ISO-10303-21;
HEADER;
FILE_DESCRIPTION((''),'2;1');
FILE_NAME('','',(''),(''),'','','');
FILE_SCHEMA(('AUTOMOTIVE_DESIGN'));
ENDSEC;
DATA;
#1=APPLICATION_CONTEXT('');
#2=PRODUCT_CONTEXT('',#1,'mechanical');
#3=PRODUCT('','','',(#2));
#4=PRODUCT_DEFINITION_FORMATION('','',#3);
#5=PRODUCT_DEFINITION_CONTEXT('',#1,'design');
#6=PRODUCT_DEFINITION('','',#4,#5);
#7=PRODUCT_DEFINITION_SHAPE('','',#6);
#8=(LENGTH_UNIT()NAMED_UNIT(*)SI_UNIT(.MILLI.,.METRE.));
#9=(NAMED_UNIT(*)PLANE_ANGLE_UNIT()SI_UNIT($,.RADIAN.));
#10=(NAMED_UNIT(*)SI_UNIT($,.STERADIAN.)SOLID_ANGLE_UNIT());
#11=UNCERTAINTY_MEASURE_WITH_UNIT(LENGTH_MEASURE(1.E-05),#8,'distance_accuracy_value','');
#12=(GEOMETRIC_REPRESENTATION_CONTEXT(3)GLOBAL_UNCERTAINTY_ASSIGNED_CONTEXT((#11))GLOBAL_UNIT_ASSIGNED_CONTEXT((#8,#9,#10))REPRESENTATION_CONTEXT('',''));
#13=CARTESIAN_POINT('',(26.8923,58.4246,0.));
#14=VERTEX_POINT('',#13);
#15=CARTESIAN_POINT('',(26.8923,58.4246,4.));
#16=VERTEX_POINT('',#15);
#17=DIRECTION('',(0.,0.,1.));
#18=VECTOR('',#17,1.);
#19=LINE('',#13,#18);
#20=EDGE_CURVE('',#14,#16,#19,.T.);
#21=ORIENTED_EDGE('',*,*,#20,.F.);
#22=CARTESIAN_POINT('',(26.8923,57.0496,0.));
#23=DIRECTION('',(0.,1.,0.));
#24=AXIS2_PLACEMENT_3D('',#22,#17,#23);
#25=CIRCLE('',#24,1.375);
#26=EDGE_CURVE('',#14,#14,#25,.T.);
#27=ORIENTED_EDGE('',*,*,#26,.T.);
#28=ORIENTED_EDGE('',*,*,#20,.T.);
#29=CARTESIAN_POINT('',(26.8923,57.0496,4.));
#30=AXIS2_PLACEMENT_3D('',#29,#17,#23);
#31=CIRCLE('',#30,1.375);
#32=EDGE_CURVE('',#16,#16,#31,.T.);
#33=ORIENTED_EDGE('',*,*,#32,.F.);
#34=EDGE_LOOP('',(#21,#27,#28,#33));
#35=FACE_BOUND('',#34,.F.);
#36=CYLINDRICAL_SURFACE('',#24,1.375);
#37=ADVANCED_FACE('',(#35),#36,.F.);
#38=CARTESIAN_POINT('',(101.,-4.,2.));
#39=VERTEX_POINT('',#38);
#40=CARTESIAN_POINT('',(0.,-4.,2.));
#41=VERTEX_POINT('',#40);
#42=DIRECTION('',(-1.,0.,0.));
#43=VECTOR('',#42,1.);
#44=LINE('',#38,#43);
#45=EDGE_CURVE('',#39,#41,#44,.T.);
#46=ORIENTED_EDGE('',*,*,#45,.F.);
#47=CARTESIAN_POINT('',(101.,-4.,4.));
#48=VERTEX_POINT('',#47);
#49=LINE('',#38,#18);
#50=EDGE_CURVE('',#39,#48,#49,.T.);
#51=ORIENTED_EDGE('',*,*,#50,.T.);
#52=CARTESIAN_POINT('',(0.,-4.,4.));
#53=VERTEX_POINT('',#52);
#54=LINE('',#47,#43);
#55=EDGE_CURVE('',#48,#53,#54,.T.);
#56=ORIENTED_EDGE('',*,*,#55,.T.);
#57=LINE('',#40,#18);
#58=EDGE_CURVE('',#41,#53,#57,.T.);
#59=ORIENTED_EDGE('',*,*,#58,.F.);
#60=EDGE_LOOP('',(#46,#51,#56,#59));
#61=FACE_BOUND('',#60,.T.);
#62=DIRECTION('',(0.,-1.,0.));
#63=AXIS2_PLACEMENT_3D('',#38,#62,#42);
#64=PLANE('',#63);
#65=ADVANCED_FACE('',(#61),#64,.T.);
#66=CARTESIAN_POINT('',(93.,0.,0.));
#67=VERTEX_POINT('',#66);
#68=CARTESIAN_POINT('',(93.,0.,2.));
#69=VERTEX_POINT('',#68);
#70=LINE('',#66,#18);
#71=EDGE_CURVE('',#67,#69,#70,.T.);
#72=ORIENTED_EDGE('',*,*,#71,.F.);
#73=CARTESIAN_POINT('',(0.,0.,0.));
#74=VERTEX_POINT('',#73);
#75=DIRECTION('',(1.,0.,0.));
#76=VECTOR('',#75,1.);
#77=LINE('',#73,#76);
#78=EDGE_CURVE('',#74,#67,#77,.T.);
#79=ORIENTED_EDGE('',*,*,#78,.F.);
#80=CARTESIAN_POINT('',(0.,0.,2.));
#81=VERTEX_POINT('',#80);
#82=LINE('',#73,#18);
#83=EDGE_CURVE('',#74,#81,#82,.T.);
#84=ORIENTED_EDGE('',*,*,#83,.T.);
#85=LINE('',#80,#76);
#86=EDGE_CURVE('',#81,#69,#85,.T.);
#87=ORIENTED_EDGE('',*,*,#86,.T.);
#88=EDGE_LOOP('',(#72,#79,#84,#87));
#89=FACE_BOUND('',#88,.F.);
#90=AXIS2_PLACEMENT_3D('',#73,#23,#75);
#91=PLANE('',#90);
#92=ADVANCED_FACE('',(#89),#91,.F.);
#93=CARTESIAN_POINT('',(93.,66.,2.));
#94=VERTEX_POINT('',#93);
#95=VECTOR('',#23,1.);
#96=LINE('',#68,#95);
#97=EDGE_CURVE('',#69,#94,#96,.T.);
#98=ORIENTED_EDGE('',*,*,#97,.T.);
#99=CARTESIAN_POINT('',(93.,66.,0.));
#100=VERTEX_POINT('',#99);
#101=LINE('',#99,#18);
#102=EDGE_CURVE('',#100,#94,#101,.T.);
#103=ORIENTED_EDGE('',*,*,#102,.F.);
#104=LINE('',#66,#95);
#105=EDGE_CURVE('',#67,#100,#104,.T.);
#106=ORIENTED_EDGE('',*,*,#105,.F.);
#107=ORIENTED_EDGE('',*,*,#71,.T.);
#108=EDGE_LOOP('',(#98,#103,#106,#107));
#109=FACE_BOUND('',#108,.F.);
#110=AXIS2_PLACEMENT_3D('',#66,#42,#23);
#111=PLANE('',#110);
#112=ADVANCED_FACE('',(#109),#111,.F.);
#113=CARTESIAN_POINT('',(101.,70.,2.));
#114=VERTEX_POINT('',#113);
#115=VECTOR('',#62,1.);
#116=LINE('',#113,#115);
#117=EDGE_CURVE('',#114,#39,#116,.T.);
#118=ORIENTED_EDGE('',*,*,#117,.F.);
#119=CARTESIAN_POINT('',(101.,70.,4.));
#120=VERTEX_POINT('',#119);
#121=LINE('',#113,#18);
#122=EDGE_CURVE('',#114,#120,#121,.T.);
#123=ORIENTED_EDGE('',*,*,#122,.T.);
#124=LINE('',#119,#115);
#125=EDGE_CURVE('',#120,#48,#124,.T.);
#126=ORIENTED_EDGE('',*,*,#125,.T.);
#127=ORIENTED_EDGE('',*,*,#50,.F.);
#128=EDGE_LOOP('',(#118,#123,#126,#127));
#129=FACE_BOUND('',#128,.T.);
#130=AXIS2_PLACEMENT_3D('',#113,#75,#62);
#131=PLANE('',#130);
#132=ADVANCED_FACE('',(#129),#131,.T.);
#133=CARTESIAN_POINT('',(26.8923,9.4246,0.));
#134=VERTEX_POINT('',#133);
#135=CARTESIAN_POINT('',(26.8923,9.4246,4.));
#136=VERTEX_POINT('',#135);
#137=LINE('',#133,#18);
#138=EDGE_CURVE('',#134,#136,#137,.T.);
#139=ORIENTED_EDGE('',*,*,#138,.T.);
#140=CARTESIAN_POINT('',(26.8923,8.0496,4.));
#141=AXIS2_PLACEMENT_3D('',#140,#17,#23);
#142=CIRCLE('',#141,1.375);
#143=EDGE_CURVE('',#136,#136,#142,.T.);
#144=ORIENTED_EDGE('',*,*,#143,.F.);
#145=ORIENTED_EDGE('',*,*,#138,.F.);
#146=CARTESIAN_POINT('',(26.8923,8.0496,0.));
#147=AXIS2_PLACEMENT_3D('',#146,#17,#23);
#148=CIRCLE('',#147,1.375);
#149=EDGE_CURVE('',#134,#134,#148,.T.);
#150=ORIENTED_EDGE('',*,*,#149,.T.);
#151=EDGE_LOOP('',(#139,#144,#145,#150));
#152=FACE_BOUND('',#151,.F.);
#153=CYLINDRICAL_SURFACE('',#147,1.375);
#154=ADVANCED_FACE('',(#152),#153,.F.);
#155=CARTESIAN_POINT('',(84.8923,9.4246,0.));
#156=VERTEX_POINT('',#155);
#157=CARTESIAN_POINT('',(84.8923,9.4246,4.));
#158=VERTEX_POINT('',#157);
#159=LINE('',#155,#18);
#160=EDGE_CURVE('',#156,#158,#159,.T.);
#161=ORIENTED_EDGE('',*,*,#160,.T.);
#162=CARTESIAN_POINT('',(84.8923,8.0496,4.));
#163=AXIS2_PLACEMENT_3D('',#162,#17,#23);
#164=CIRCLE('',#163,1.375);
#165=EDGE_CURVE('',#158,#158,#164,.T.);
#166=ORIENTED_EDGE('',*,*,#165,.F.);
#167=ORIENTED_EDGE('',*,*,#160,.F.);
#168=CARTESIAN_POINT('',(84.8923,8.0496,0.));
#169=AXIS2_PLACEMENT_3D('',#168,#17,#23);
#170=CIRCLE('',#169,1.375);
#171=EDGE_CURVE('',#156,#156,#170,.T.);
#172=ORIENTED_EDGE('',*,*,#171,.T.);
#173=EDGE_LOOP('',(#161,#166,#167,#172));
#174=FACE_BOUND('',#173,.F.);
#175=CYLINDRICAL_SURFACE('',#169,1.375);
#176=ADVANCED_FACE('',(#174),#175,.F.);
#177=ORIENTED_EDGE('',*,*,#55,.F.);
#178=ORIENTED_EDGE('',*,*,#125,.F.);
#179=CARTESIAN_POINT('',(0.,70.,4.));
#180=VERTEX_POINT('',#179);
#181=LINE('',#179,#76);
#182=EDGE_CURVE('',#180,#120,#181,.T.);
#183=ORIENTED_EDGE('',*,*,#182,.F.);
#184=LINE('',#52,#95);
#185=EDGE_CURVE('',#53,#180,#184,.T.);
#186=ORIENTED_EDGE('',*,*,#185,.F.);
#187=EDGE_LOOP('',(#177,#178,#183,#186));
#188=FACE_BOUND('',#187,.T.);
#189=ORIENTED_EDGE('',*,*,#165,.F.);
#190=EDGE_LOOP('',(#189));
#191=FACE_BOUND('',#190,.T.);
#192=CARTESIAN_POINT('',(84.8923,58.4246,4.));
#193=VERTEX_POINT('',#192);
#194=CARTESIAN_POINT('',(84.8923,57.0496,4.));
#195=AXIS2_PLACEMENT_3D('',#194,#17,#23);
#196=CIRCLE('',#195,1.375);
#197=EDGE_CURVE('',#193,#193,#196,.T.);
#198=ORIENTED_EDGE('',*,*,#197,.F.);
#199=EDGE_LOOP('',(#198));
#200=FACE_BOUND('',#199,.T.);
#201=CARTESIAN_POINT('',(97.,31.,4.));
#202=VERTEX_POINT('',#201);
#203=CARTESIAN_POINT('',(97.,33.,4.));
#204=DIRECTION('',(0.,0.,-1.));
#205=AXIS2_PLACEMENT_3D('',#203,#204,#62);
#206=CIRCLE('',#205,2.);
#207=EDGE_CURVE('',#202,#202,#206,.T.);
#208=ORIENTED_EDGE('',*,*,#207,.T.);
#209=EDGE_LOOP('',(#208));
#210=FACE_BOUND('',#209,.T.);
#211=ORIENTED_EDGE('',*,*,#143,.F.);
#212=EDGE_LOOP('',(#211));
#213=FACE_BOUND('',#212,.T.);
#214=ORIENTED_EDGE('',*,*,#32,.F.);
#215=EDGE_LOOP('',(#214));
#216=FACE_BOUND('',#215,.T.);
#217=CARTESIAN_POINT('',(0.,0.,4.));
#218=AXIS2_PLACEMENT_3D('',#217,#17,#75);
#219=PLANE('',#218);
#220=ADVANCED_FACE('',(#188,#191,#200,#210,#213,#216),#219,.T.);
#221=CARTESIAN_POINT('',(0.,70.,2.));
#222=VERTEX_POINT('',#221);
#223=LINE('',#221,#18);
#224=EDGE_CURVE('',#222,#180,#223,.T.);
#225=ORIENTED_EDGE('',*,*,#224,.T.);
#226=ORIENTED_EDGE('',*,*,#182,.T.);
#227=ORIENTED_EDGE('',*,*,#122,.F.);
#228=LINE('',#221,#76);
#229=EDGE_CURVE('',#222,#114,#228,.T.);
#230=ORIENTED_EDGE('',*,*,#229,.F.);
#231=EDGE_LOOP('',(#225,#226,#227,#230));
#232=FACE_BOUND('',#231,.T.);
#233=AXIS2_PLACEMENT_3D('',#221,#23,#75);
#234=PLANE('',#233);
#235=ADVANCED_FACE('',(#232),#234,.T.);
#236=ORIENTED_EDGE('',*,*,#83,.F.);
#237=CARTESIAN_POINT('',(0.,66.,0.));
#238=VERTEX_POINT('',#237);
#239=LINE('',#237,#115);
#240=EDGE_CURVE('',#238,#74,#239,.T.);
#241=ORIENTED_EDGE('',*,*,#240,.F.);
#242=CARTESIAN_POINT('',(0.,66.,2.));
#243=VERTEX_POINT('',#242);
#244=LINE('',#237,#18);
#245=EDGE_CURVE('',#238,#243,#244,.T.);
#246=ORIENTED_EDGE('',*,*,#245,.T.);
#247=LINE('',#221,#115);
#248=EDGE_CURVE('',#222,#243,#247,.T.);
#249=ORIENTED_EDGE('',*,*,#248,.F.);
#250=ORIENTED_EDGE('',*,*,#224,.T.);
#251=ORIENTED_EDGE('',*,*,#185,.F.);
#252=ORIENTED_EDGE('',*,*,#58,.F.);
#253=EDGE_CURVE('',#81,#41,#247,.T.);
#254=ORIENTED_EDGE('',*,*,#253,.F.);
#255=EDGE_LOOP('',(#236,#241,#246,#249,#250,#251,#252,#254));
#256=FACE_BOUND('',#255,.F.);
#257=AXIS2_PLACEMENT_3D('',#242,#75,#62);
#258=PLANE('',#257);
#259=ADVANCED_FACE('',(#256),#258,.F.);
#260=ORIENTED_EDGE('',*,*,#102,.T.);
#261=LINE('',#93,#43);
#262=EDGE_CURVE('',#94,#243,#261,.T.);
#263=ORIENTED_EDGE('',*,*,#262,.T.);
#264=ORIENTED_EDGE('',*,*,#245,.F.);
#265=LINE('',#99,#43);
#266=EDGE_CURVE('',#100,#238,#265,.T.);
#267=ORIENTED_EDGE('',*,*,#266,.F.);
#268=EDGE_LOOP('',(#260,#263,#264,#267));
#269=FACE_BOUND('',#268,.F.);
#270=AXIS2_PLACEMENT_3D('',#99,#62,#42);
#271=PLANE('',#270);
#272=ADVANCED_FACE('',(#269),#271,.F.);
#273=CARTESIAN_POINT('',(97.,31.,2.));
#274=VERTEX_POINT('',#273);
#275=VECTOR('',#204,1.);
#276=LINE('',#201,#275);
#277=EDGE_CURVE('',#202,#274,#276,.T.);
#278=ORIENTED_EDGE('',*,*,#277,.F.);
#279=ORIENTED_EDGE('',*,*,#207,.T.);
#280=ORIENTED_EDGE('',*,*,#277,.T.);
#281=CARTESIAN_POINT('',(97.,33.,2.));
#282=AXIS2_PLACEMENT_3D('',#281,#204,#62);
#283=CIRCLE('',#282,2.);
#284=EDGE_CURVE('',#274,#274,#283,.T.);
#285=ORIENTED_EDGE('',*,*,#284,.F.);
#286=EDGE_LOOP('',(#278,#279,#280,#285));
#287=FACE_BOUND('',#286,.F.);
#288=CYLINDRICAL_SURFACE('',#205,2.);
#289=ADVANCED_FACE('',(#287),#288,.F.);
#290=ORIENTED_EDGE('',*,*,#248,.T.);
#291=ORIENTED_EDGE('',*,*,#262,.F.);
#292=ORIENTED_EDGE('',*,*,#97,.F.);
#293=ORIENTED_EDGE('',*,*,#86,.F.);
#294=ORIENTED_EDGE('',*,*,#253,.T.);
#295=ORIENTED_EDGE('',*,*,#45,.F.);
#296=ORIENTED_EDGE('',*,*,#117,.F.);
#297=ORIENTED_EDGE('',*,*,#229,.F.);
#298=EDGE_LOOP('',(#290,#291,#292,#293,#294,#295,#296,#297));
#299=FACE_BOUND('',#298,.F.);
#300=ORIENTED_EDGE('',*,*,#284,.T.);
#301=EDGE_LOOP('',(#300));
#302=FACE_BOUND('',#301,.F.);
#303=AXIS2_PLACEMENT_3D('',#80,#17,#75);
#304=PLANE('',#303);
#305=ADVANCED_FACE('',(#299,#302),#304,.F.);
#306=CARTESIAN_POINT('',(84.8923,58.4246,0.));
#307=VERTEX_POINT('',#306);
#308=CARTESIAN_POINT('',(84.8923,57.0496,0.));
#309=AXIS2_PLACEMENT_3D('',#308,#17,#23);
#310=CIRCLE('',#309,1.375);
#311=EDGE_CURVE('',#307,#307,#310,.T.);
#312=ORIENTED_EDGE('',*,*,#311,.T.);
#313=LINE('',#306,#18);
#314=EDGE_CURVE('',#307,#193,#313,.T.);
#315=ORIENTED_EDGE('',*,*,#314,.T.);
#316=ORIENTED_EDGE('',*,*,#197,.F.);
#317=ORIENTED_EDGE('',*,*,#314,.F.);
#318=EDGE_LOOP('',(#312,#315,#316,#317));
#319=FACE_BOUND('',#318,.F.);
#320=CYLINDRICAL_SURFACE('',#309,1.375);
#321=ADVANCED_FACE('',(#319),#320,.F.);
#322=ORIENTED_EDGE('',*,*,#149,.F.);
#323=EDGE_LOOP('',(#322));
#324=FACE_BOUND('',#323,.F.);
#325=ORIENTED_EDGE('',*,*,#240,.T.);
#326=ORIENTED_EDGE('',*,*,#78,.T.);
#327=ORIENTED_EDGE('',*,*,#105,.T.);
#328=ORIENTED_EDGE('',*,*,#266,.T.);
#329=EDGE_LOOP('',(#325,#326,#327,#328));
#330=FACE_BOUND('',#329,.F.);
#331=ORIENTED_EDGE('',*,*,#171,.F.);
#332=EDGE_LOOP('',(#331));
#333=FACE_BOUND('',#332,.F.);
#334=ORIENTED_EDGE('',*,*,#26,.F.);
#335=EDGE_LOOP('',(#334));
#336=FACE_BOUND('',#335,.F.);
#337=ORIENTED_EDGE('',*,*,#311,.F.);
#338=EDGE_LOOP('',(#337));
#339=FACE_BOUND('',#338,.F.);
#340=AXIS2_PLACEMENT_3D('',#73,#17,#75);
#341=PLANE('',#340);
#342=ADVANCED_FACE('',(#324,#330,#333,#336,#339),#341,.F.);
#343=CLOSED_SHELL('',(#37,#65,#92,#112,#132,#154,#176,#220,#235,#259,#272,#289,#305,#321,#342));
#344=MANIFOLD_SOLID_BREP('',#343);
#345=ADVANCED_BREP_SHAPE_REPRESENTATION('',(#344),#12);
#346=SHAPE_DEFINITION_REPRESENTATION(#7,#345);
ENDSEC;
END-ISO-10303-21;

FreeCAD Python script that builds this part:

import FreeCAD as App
import Part
import Sketcher
from FreeCAD import Vector
Q = App.Units.Quantity


def add_polygon(sketch, points):
    """Adds a closed chain of lines whose ends are joined by coincident constraints."""
    first, n = sketch.GeometryCount, len(points)
    for a, b in zip(points, points[1:] + points[:1]):
        sketch.addGeometry(Part.LineSegment(App.Vector(*a, 0), App.Vector(*b, 0)), False)
    for i in range(n):
        sketch.addConstraint(Sketcher.Constraint("Coincident", first + i, 2, first + (i + 1) % n, 1))

doc = App.newDocument("Part")
params = doc.addObject("Spreadsheet::Sheet", "Params")
for row, (alias, value) in enumerate([
    ("sketch1_width", "93 mm"),
    ("sketch1_height", "66 mm"),
    ("pad1_length", "2 mm"),
    ("sketch2_width", "101 mm"),
    ("sketch2_height", "74 mm"),
    ("pad2_length", "2 mm"),
    ("sketch3_diameter", "2.75 mm"),
    ("hole_diameter", "2.75 mm"),
    ("hole_depth", "4 mm"),
    ("sketch4_diameter", "4 mm"),
    ("hole2_diameter", "4 mm"),
    ("hole2_depth", "3 mm"),
], start=1):
    params.set(f"A{row}", alias)
    params.set(f"B{row}", "=" + value)
    params.setAlias(f"B{row}", alias)

body = doc.addObject("PartDesign::Body", "Body")

sketch1 = body.newObject("Sketcher::SketchObject", "Sketch")
sketch1.AttachmentSupport = (doc.getObject("XY_Plane"), [""])
sketch1.MapMode = "FlatFace"
add_polygon(sketch1, [(0, 66), (0, 0), (93, 0), (93, 66)])
sketch1.addConstraint([
    Sketcher.Constraint("Vertical", 0),
    Sketcher.Constraint("Horizontal", 1),
    Sketcher.Constraint("Vertical", 2),
    Sketcher.Constraint("Horizontal", 3),
    Sketcher.Constraint("Coincident", 0, 2, -1, 1),
    Sketcher.Constraint("DistanceX", 1, 1, 1, 2, Q("93 mm")),
    Sketcher.Constraint("DistanceY", 0, 2, 0, 1, Q("66 mm")),
])
sketch1.setExpression("Constraints[9]", "Params.sketch1_width")
sketch1.setExpression("Constraints[10]", "Params.sketch1_height")
pad1 = body.newObject("PartDesign::Pad", "Pad")
pad1.Profile = sketch1
pad1.setExpression("Length", "Params.pad1_length")

sketch2 = body.newObject("Sketcher::SketchObject", "Sketch001")
sketch2.AttachmentSupport = (doc.getObject("XY_Plane"), [""])
sketch2.MapMode = "FlatFace"
sketch2.AttachmentOffset = App.Placement(Vector(0, 0, 2), App.Rotation())
add_polygon(sketch2, [(0, -4), (101, -4), (101, 70), (0, 70)])
sketch2.addConstraint([
    Sketcher.Constraint("Horizontal", 0),
    Sketcher.Constraint("Vertical", 1),
    Sketcher.Constraint("Horizontal", 2),
    Sketcher.Constraint("Vertical", 3),
    Sketcher.Constraint("PointOnObject", 2, 2, -2),
    Sketcher.Constraint("DistanceY", 0, 2, -1, 1, Q("4 mm")),
    Sketcher.Constraint("DistanceX", 0, 1, 0, 2, Q("101 mm")),
    Sketcher.Constraint("DistanceY", 1, 1, 1, 2, Q("74 mm")),
])
sketch2.setExpression("Constraints[10]", "Params.sketch2_width")
sketch2.setExpression("Constraints[11]", "Params.sketch2_height")
pad2 = body.newObject("PartDesign::Pad", "Pad001")
pad2.Profile = sketch2
pad2.setExpression("Length", "Params.pad2_length")

sketch3 = body.newObject("Sketcher::SketchObject", "Sketch002")
sketch3.AttachmentSupport = (doc.getObject("XY_Plane"), [""])
sketch3.MapMode = "FlatFace"
sketch3.addGeometry([
    Part.Circle(Vector(26.9, 57, 0), Vector(0, 0, 1), 1.4),
    Part.Circle(Vector(84.9, 57, 0), Vector(0, 0, 1), 1.4),
    Part.Circle(Vector(84.9, 8, 0), Vector(0, 0, 1), 1.4),
    Part.Circle(Vector(26.9, 8, 0), Vector(0, 0, 1), 1.4),
], False)
sketch3.addConstraint([
    Sketcher.Constraint("Equal", 0, 1),
    Sketcher.Constraint("Equal", 1, 2),
    Sketcher.Constraint("Equal", 2, 3),
    Sketcher.Constraint("Horizontal", 0, 3, 1, 3),
    Sketcher.Constraint("Horizontal", 2, 3, 3, 3),
    Sketcher.Constraint("Vertical", 1, 3, 2, 3),
    Sketcher.Constraint("Vertical", 0, 3, 3, 3),
    Sketcher.Constraint("Diameter", 0, Q("2.75 mm")),
    Sketcher.Constraint("DistanceX", 0, 3, 1, 3, Q("58 mm")),
    Sketcher.Constraint("DistanceY", 2, 3, 1, 3, Q("49 mm")),
    Sketcher.Constraint("DistanceX", -1, 1, 0, 3, Q("26.8923 mm")),
    Sketcher.Constraint("DistanceY", -1, 1, 0, 3, Q("57.0496 mm")),
])
sketch3.setExpression("Constraints[7]", "Params.sketch3_diameter")
doc.recompute()
hole = body.newObject("PartDesign::Hole", "Hole")
hole.Profile = sketch3
hole.ThreadType = "None"
hole.setExpression("Diameter", "Params.hole_diameter")
hole.DepthType = "Dimension"
hole.setExpression("Depth", "Params.hole_depth")
hole.DrillPoint = "Flat"
hole.Reversed = True

sketch4 = body.newObject("Sketcher::SketchObject", "Sketch003")
sketch4.AttachmentSupport = (doc.getObject("XY_Plane"), [""])
sketch4.MapMode = "FlatFace"
sketch4.AttachmentOffset = App.Placement(Vector(0, 0, 4), App.Rotation())
sketch4.addGeometry(Part.Circle(Vector(97, 33, 0), Vector(0, 0, 1), 2), False)
sketch4.addConstraint([
    Sketcher.Constraint("Diameter", 0, Q("4 mm")),
    Sketcher.Constraint("DistanceX", -1, 1, 0, 3, Q("97 mm")),
    Sketcher.Constraint("DistanceY", -1, 1, 0, 3, Q("33 mm")),
])
sketch4.setExpression("Constraints[0]", "Params.sketch4_diameter")
doc.recompute()
hole2 = body.newObject("PartDesign::Hole", "Hole001")
hole2.Profile = sketch4
hole2.ThreadType = "None"
hole2.setExpression("Diameter", "Params.hole2_diameter")
hole2.DepthType = "Dimension"
hole2.setExpression("Depth", "Params.hole2_depth")
hole2.DrillPoint = "Flat"

doc.recompute()
